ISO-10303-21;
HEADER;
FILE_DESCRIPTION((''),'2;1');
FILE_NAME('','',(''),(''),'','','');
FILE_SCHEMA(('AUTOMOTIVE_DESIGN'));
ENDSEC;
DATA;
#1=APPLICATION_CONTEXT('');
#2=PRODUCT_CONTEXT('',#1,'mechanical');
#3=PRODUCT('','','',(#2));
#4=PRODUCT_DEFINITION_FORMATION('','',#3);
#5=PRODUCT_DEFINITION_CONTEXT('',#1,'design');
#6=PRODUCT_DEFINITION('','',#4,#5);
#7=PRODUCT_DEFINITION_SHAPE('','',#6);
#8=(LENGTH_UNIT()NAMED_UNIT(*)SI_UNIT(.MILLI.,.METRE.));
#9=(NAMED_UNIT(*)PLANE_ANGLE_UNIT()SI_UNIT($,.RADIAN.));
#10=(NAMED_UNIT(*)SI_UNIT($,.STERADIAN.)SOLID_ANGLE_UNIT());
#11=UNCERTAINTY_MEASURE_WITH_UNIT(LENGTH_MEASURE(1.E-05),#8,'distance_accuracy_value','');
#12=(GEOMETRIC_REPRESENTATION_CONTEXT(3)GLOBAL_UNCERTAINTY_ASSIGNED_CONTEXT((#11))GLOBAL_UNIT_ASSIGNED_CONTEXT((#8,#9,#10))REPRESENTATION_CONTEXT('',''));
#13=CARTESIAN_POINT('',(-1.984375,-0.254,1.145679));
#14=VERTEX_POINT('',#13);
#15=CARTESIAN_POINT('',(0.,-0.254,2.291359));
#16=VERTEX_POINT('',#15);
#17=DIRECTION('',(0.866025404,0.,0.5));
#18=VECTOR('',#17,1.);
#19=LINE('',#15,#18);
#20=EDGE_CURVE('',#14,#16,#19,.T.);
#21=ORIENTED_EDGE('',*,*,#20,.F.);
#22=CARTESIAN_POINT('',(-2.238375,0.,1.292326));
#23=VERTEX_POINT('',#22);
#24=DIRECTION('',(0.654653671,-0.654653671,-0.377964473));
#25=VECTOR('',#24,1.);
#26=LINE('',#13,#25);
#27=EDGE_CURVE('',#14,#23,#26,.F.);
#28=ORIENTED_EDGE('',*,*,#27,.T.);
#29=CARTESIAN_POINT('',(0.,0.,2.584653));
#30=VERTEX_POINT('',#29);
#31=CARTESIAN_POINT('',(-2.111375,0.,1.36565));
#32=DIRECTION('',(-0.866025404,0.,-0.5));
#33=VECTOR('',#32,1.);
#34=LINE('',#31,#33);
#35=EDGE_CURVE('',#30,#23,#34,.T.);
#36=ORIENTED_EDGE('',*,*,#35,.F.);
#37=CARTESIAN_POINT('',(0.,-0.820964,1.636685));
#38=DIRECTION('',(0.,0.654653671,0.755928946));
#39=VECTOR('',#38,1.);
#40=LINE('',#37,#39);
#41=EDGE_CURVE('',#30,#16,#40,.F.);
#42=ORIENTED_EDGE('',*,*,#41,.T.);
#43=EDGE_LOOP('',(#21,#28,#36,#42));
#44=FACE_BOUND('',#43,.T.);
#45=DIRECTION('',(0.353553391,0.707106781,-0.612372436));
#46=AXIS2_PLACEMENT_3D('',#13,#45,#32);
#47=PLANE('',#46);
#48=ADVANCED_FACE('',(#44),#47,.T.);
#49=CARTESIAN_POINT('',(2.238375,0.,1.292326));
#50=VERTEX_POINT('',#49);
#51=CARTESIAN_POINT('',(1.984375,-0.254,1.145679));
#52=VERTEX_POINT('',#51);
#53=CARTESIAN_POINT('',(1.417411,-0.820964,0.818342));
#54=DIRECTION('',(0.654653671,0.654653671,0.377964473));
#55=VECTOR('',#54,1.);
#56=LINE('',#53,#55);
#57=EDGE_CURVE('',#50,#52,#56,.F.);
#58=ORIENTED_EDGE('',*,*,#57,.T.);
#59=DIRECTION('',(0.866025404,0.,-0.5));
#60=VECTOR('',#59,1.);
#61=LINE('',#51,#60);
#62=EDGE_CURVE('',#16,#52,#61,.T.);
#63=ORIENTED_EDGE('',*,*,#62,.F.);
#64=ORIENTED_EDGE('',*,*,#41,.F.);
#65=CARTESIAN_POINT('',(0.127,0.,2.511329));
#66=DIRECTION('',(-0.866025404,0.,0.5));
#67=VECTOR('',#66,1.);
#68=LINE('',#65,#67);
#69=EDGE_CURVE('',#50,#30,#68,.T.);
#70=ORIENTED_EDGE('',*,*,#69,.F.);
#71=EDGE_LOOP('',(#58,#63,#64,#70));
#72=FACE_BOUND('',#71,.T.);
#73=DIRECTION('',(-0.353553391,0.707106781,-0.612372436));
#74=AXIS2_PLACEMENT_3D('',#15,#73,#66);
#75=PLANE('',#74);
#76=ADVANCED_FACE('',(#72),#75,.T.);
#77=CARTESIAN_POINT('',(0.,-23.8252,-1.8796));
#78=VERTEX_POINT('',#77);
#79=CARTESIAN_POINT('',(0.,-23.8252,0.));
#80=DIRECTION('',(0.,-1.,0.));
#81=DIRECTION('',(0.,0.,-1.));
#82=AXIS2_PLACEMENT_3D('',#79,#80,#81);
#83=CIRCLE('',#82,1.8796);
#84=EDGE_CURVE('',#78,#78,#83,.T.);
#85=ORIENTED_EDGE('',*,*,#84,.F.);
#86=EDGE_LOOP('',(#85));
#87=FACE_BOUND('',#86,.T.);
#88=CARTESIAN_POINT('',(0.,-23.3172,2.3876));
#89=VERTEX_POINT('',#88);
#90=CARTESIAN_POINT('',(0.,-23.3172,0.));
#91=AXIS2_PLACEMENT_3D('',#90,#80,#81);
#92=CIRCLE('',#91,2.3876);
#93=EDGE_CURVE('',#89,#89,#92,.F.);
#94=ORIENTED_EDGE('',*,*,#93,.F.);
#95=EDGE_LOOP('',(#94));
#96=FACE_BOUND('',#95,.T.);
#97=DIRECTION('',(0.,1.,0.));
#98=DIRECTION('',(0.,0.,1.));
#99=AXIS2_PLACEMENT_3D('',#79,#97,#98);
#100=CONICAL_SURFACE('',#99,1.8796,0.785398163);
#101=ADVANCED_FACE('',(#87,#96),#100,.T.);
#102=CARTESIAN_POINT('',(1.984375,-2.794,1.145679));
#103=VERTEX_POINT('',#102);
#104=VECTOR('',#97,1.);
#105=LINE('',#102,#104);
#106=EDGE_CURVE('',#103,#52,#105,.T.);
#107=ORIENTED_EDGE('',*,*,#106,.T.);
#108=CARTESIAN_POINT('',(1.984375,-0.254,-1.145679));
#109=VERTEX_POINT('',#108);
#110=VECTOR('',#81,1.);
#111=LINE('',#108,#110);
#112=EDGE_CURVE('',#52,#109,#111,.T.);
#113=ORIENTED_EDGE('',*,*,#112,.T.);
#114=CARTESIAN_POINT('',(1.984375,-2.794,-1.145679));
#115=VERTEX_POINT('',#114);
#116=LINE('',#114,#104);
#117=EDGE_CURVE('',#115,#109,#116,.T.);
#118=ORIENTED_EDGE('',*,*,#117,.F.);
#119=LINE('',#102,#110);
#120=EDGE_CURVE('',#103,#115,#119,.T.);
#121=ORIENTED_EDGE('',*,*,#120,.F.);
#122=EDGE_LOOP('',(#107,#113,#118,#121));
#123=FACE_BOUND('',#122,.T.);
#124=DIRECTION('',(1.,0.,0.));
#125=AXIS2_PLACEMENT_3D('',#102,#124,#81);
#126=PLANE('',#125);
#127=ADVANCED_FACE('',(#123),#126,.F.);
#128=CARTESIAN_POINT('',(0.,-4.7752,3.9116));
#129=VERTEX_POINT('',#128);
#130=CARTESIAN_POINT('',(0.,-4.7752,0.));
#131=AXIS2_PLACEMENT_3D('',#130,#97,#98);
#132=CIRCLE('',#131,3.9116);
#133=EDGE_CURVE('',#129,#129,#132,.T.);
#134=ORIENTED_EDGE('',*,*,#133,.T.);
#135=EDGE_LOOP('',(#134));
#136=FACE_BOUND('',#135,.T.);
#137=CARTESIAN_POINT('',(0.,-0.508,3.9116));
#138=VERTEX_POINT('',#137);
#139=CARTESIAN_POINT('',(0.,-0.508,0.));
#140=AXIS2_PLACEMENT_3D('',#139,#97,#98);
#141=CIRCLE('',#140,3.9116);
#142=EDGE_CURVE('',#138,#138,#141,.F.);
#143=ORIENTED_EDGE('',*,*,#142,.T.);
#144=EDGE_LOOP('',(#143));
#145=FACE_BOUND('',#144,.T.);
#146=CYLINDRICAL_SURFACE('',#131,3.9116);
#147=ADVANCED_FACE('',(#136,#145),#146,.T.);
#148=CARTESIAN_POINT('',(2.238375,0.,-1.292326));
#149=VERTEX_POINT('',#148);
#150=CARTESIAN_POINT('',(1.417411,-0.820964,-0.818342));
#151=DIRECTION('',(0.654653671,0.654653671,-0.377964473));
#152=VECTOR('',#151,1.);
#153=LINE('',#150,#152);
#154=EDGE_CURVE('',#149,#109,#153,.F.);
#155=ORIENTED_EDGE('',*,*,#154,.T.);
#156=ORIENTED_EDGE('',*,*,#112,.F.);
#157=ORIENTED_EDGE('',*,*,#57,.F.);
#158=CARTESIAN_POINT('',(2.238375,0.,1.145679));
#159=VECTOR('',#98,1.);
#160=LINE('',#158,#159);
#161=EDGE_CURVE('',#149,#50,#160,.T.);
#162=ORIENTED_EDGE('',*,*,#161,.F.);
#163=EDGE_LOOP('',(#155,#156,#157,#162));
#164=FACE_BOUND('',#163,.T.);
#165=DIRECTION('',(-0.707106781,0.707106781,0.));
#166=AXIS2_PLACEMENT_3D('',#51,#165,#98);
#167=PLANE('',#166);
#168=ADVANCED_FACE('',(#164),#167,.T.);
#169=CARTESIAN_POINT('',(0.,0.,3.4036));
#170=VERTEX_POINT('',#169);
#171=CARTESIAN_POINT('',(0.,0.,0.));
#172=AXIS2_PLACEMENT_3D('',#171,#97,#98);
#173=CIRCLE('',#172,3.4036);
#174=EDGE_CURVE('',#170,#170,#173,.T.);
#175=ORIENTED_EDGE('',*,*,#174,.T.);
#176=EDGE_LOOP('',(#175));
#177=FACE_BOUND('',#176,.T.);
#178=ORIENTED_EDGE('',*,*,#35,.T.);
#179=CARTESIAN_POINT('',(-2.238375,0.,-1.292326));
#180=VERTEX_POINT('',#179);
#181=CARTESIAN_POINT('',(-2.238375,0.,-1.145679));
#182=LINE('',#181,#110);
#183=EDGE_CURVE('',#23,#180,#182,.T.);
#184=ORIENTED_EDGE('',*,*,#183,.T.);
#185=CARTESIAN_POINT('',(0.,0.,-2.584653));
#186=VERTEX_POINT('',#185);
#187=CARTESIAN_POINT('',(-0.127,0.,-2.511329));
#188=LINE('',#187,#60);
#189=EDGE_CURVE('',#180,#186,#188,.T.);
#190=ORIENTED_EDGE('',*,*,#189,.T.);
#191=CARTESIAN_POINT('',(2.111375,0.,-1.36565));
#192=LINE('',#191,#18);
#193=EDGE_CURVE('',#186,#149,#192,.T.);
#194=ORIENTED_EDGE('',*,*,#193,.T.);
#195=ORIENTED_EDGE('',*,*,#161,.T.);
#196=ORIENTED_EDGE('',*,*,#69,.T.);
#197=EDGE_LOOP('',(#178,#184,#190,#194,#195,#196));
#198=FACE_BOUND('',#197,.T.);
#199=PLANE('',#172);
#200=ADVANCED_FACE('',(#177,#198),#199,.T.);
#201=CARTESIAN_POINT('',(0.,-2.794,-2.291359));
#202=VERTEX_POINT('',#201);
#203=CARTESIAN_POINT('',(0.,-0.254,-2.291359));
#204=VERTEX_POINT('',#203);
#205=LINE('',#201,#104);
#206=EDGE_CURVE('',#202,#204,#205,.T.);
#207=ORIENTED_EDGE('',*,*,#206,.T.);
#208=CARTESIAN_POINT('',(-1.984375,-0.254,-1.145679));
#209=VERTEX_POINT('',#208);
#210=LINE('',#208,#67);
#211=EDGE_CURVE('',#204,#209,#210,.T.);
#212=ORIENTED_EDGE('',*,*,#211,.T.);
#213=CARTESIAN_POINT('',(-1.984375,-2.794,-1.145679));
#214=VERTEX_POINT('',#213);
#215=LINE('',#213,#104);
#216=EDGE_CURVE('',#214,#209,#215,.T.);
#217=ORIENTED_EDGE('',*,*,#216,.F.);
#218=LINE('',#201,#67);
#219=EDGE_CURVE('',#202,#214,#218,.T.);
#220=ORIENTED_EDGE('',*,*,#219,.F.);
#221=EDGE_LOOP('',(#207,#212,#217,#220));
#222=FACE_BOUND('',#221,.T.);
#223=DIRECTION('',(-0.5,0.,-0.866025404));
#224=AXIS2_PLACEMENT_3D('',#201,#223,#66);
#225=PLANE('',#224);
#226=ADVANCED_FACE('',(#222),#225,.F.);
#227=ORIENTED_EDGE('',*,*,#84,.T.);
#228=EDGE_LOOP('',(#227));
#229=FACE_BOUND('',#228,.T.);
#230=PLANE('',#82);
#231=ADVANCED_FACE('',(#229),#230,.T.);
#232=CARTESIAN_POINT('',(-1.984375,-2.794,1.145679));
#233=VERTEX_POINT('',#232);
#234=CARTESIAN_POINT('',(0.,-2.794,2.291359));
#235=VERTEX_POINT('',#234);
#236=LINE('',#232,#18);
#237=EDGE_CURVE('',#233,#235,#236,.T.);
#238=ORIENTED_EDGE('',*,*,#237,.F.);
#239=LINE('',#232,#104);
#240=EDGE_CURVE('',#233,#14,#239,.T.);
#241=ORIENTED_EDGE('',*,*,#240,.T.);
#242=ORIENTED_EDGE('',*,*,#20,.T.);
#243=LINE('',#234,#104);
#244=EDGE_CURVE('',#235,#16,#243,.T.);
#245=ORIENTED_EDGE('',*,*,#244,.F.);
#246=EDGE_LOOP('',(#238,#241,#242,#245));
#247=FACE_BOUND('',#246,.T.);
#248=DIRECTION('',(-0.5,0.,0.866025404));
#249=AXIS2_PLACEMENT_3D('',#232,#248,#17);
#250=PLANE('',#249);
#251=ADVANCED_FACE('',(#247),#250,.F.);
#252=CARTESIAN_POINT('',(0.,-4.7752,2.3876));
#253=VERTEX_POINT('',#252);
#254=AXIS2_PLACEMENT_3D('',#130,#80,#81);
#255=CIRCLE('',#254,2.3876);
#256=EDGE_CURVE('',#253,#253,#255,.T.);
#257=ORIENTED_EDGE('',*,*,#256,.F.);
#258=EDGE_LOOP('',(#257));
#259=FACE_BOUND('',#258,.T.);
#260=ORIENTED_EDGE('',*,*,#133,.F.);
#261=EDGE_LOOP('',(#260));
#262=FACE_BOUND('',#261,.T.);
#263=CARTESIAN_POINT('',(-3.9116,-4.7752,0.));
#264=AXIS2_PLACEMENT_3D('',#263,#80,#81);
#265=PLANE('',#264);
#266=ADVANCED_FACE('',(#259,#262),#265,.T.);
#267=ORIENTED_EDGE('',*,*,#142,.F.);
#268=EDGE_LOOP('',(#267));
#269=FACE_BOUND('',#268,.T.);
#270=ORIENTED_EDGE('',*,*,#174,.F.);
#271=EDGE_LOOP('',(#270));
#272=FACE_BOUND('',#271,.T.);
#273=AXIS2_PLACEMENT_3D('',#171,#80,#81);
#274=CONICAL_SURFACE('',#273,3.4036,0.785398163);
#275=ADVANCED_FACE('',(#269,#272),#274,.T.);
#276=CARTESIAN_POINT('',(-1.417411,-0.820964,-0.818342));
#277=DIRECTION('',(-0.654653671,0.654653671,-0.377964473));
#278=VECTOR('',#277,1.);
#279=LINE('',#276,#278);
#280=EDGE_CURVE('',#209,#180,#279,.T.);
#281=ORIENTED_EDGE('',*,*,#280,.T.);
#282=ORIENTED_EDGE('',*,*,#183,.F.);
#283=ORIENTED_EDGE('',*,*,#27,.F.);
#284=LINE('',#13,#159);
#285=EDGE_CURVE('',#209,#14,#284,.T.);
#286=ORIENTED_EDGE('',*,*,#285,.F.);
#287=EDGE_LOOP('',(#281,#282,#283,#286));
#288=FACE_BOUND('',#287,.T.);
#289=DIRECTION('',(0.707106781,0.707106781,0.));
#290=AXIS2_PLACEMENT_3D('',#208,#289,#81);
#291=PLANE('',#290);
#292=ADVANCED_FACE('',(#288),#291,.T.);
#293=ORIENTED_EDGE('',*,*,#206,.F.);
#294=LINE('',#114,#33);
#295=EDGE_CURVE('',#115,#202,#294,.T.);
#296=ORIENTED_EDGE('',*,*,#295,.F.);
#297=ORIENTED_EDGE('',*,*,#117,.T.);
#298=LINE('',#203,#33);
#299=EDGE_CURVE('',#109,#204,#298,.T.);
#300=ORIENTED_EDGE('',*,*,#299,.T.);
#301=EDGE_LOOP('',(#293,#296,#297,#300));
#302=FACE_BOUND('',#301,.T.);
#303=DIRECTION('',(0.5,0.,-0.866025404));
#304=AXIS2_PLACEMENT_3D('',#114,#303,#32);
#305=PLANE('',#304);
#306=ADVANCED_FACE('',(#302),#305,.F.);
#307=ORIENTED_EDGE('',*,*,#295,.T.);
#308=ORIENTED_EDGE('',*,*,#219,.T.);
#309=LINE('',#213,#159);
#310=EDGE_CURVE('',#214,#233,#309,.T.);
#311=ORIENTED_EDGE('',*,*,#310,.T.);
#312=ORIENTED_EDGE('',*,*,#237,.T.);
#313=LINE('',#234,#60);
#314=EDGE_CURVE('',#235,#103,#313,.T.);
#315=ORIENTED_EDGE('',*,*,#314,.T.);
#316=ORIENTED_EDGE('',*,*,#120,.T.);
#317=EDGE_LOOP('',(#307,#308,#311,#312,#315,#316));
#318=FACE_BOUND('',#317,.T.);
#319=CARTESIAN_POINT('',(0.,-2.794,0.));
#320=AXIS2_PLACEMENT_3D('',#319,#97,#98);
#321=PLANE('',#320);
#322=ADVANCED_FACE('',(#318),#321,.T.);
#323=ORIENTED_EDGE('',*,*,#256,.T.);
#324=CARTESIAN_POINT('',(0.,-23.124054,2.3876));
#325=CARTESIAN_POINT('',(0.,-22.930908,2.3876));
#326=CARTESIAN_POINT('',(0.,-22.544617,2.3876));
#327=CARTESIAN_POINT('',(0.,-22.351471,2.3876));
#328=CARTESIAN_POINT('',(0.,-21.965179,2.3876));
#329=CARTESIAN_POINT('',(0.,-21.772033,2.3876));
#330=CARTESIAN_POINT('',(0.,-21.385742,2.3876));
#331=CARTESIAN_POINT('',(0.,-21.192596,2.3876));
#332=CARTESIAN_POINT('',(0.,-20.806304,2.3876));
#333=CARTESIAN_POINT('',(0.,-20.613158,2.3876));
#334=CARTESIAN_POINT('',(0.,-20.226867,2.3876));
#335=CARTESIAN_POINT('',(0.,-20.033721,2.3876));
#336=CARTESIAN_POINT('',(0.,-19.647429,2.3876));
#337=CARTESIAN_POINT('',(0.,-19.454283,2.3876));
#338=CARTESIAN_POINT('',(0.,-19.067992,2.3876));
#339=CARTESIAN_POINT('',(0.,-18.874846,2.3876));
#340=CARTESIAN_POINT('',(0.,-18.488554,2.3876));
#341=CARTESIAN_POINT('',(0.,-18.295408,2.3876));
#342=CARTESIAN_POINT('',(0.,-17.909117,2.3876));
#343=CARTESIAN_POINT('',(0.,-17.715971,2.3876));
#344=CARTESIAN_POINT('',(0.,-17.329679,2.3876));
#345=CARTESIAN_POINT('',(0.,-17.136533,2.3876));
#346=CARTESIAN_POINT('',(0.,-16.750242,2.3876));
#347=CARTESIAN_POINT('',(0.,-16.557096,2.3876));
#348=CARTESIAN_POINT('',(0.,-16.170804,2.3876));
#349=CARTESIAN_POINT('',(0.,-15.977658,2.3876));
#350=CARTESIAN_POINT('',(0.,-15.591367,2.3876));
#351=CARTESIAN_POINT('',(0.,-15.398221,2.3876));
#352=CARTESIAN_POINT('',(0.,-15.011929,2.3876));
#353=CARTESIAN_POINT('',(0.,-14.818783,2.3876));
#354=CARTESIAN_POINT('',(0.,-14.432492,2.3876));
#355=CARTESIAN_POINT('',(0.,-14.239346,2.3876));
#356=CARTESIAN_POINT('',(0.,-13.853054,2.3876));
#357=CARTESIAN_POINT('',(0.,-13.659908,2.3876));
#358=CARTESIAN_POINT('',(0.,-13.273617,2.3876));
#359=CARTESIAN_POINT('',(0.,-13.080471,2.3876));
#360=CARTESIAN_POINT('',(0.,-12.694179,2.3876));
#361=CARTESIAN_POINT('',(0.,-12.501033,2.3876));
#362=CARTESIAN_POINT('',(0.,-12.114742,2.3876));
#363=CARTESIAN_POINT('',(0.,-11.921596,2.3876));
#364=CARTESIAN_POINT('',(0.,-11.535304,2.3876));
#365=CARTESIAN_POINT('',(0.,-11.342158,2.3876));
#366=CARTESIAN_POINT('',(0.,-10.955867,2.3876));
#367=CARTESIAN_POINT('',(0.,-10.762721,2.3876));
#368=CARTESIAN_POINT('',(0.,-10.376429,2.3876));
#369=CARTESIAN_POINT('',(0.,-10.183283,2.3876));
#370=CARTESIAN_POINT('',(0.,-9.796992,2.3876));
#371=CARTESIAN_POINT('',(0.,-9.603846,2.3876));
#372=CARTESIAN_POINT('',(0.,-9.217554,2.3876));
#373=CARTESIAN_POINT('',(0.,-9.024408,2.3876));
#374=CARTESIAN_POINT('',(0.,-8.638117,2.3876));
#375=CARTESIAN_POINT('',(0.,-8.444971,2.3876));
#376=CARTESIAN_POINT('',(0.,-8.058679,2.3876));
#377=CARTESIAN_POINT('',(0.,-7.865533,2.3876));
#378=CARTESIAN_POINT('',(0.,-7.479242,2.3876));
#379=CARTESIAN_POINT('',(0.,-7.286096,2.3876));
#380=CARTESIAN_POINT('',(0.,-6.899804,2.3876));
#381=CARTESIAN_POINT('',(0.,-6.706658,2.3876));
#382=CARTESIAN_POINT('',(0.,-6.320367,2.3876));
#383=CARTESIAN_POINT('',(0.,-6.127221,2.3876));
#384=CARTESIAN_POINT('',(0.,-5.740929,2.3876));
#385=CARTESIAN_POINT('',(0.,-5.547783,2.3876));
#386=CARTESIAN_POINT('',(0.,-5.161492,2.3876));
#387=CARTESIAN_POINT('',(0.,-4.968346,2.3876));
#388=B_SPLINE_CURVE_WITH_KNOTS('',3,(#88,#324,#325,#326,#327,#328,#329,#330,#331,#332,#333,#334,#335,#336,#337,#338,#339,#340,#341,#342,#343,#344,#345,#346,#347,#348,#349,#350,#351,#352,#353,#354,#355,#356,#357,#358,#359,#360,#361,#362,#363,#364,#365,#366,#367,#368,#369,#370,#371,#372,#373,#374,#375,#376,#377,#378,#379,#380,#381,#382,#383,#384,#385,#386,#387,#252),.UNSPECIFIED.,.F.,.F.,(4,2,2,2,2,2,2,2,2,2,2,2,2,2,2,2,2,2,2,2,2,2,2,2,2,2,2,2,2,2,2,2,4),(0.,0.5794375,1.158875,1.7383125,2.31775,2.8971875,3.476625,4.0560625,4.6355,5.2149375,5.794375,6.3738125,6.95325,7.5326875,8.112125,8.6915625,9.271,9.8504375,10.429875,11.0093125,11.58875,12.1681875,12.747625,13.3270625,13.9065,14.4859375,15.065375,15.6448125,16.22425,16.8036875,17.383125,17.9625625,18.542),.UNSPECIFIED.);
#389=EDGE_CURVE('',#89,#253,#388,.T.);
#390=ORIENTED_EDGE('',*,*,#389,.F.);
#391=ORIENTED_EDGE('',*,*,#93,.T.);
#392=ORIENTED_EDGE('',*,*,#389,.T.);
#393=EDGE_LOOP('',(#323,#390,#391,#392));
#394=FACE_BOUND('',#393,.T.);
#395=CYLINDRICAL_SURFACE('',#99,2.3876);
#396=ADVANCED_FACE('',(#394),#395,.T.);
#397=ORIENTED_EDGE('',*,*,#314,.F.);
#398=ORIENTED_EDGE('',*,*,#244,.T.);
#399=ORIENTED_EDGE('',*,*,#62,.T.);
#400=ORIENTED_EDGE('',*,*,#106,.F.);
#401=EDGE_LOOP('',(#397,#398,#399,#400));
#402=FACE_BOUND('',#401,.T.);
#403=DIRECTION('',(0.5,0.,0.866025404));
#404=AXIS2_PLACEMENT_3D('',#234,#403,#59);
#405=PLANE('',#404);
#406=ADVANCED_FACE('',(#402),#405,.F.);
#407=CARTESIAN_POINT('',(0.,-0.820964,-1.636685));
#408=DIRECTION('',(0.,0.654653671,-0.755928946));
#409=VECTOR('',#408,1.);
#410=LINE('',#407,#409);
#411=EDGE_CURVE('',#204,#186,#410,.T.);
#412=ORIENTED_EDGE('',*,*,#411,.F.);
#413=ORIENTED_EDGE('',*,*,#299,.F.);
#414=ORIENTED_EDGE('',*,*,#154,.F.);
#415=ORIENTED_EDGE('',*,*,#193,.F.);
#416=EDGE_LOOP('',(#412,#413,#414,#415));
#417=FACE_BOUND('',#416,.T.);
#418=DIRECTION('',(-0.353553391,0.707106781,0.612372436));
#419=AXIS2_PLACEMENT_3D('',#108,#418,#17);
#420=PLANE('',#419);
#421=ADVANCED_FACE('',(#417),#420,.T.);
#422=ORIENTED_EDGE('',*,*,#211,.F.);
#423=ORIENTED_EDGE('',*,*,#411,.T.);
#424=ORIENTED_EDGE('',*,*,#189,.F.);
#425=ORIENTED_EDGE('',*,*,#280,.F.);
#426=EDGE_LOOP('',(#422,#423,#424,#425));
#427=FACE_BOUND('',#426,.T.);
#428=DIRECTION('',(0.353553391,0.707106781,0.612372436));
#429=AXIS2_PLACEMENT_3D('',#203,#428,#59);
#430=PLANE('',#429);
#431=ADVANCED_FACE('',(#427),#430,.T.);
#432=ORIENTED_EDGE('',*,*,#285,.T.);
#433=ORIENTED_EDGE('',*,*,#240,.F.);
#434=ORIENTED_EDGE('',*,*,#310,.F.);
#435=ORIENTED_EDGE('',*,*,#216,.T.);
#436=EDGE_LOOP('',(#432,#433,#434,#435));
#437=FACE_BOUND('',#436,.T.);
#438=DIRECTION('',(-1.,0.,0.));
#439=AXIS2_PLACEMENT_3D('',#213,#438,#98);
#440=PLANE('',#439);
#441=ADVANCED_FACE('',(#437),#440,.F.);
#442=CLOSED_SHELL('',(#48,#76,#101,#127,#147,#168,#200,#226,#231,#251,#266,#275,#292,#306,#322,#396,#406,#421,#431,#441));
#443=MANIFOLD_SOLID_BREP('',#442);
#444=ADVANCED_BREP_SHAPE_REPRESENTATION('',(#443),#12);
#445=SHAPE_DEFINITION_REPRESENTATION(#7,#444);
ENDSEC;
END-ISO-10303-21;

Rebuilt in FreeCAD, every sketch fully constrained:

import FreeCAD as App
import Part
import Sketcher
from FreeCAD import Vector
Q = App.Units.Quantity


def edges_at(feature, points):
    """Names of the edges that pass closest to the given points."""
    edges = feature.Shape.Edges
    near = lambda p: min(range(len(edges)), key=lambda i: edges[i].distToShape(Part.Vertex(*p))[0])
    return sorted({f"Edge{near(p) + 1}" for p in points})

doc = App.newDocument("Part")
body = doc.addObject("PartDesign::Body", "Body")

# Sketch on XY plane
sketch1 = body.newObject("Sketcher::SketchObject", "Sketch")
sketch1.AttachmentSupport = (doc.getObject("XY_Plane"), [""])
sketch1.MapMode = "FlatFace"
sketch1.addGeometry([
    Part.LineSegment(Vector(-3.9116, 0, 0), Vector(-3.9116, -4.7752, 0)),
    Part.LineSegment(Vector(-3.9116, -4.7752, 0), Vector(0, -4.7752, 0)),
    Part.LineSegment(Vector(0, -4.7752, 0), Vector(0, 0, 0)),
    Part.LineSegment(Vector(0, 0, 0), Vector(-3.9116, 0, 0)),
], False)
sketch1.addConstraint([
    Sketcher.Constraint("Coincident", 0, 2, 1, 1),
    Sketcher.Constraint("Coincident", 1, 2, 2, 1),
    Sketcher.Constraint("Coincident", 2, 2, 3, 1),
    Sketcher.Constraint("Coincident", 3, 2, 0, 1),
    Sketcher.Constraint("Vertical", 0),
    Sketcher.Constraint("Horizontal", 1),
    Sketcher.Constraint("Vertical", 2),
    Sketcher.Constraint("Horizontal", 3),
    Sketcher.Constraint("Coincident", 2, 2, -1, 1),
    Sketcher.Constraint("DistanceX", 1, 1, 1, 2, Q("0.154 in")),
    Sketcher.Constraint("DistanceY", 0, 2, 0, 1, Q("0.188 in")),
])
revolution = body.newObject("PartDesign::Revolution", "Revolution")
revolution.Profile = sketch1
revolution.ReferenceAxis = (sketch1, ["V_Axis"])
revolution.Angle = 360

# Sketch on XZ plane
sketch2 = body.newObject("Sketcher::SketchObject", "Sketch001")
sketch2.AttachmentSupport = (doc.getObject("XZ_Plane"), [""])
sketch2.MapMode = "FlatFace"
sketch2.AttachmentOffset = App.Placement(Vector(0, 0, 0.188 * 25.4), App.Rotation())
sketch2.addGeometry(Part.Circle(Vector(0, 0, 0), Vector(0, 0, 1), 2.3876), False)
sketch2.addConstraint([
    Sketcher.Constraint("Coincident", 0, 3, -1, 1),
    Sketcher.Constraint("Diameter", 0, Q("0.188 in")),
])
pad1 = body.newObject("PartDesign::Pad", "Pad")
pad1.Profile = sketch2
pad1.Length = Q("0.75 in")

# Sketch on XZ plane
sketch3 = body.newObject("Sketcher::SketchObject", "Sketch002")
sketch3.AttachmentSupport = (doc.getObject("XZ_Plane"), [""])
sketch3.MapMode = "FlatFace"
sketch3.addGeometry([
    Part.LineSegment(Vector(-1.984375, -1.145679, 0), Vector(-1.984375, 1.145679, 0)),  # 0
    Part.LineSegment(Vector(-1.984375, 1.145679, 0), Vector(0, 2.291359, 0)),  # 1
    Part.LineSegment(Vector(0, 2.291359, 0), Vector(1.984375, 1.145679, 0)),  # 2
    Part.LineSegment(Vector(1.984375, 1.145679, 0), Vector(1.984375, -1.145679, 0)),  # 3
    Part.LineSegment(Vector(1.984375, -1.145679, 0), Vector(0, -2.291359, 0)),  # 4
    Part.LineSegment(Vector(0, -2.291359, 0), Vector(-1.984375, -1.145679, 0)),  # 5
], False)
sketch3.addConstraint([
    Sketcher.Constraint("Coincident", 0, 2, 1, 1),
    Sketcher.Constraint("Coincident", 1, 2, 2, 1),
    Sketcher.Constraint("Coincident", 2, 2, 3, 1),
    Sketcher.Constraint("Coincident", 3, 2, 4, 1),
    Sketcher.Constraint("Coincident", 4, 2, 5, 1),
    Sketcher.Constraint("Coincident", 5, 2, 0, 1),
    Sketcher.Constraint("Vertical", 0),
    Sketcher.Constraint("Vertical", 3),
    Sketcher.Constraint("Symmetric", 0, 2, 3, 2, -1, 1),
    Sketcher.Constraint("Symmetric", 1, 2, 4, 2, -1, 1),
    Sketcher.Constraint("PointOnObject", 1, 2, -2),
    Sketcher.Constraint("Parallel", 2, 5),
    Sketcher.Constraint("Horizontal", 0, 2, 2, 2),
    Sketcher.Constraint("Angle", 1, Q("30 deg")),
    Sketcher.Constraint("DistanceX", 0, 2, -1, 1, Q("0.078125 in")),
    Sketcher.Constraint("DistanceY", 0, 1, 0, 2, 2.291359),
])
pocket1 = body.newObject("PartDesign::Pocket", "Pocket")
pocket1.Profile = sketch3
pocket1.Length = Q("0.11 in")
pocket1.Reversed = True
doc.recompute()

chamfer = body.newObject("PartDesign::Chamfer", "Chamfer")
chamfer.Base = (pocket1, edges_at(pocket1, [(0, 0, -3.912), (0, -23.825, -2.388)]))
chamfer.Size = Q("0.02 in")
doc.recompute()

chamfer2 = body.newObject("PartDesign::Chamfer", "Chamfer001")
chamfer2.Base = (chamfer, edges_at(chamfer, [
    (-0.992, 0, -1.719),
    (-1.984, 0, 0),
    (-0.992, 0, 1.719),
    (0.992, 0, 1.719),
    (1.984, 0, 0),
    (0.992, 0, -1.719),
]))
chamfer2.Size = Q("0.01 in")

doc.recompute()
